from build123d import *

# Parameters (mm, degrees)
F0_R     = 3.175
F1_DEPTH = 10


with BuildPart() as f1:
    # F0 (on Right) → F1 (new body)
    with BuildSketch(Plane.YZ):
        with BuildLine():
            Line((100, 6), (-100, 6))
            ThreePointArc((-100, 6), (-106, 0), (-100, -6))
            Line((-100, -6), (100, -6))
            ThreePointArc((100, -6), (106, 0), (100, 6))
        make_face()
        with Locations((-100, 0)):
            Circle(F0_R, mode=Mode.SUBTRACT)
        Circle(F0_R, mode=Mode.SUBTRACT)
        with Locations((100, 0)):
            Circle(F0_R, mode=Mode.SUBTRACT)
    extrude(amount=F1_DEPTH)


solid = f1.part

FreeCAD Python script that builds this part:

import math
import FreeCAD as App
import Part
import Sketcher
Q = App.Units.Quantity

doc = App.newDocument("Part")
body = doc.addObject("PartDesign::Body", "Body")

sketch1 = doc.addObject("Sketcher::SketchObject", "Sketch")
body.addObject(sketch1)
sketch1.AttachmentSupport = (doc.YZ_Plane, [""])
sketch1.MapMode = "FlatFace"
sketch1.addGeometry([
    Part.LineSegment(App.Vector(100, 6, 0), App.Vector(-100, 6, 0)),
    Part.ArcOfCircle(Part.Circle(App.Vector(-100, 0, 0), App.Vector(0, 0, 1), 6), math.radians(90), math.radians(270)),
    Part.LineSegment(App.Vector(-100, -6, 0), App.Vector(100, -6, 0)),
    Part.ArcOfCircle(Part.Circle(App.Vector(100, 0, 0), App.Vector(0, 0, 1), 6), math.radians(-90), math.radians(90)),
    Part.Circle(App.Vector(-100, 0, 0), App.Vector(0, 0, 1), 3.175),
    Part.Circle(App.Vector(0, 0, 0), App.Vector(0, 0, 1), 3.175),
    Part.Circle(App.Vector(100, 0, 0), App.Vector(0, 0, 1), 3.175),
], False)
sketch1.addConstraint([
    Sketcher.Constraint("Tangent", 0, 2, 1, 1),
    Sketcher.Constraint("Tangent", 1, 2, 2, 1),
    Sketcher.Constraint("Tangent", 2, 2, 3, 1),
    Sketcher.Constraint("Tangent", 3, 2, 0, 1),
    Sketcher.Constraint("Horizontal", 0),
    Sketcher.Constraint("Horizontal", 2),
    Sketcher.Constraint("Coincident", 5, 3, -1, 1),
    Sketcher.Constraint("Coincident", 4, 3, 1, 3),
    Sketcher.Constraint("Coincident", 6, 3, 3, 3),
    Sketcher.Constraint("Equal", 4, 5),
    Sketcher.Constraint("Equal", 5, 6),
    Sketcher.Constraint("Symmetric", 1, 3, 3, 3, -1, 1),
    Sketcher.Constraint("Radius", 1, Q("6 mm")),
    Sketcher.Constraint("Diameter", 4, Q("6.35 mm")),
    Sketcher.Constraint("DistanceX", 0, 2, 0, 1, Q("200 mm")),
])
pad1 = doc.addObject("PartDesign::Pad", "Pad")
body.addObject(pad1)
pad1.Profile = sketch1
pad1.Length = 10

doc.recompute()
